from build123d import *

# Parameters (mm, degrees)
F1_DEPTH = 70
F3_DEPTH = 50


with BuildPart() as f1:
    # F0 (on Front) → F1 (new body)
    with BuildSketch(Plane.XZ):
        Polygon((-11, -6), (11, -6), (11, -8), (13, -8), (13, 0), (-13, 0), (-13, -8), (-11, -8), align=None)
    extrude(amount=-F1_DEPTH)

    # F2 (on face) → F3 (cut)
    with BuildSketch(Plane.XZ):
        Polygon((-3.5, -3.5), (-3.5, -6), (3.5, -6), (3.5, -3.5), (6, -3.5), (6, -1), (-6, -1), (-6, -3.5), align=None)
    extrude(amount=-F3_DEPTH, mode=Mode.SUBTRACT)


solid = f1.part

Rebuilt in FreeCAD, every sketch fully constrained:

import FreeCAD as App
import Part
import Sketcher


def add_polygon(sketch, points):
    """Adds a closed chain of lines whose ends are joined by coincident constraints."""
    first, n = sketch.GeometryCount, len(points)
    for a, b in zip(points, points[1:] + points[:1]):
        sketch.addGeometry(Part.LineSegment(App.Vector(*a, 0), App.Vector(*b, 0)), False)
    for i in range(n):
        sketch.addConstraint(Sketcher.Constraint("Coincident", first + i, 2, first + (i + 1) % n, 1))

doc = App.newDocument("Part")
body = doc.addObject("PartDesign::Body", "Body")

sketch1 = body.newObject("Sketcher::SketchObject", "Sketch")
sketch1.AttachmentSupport = (doc.getObject("XZ_Plane"), [""])
sketch1.MapMode = "FlatFace"
add_polygon(sketch1, [(-11, -6), (11, -6), (11, -8), (13, -8), (13, 0), (-13, 0), (-13, -8), (-11, -8)])
sketch1.addConstraint([
    Sketcher.Constraint("Horizontal", 0),
    Sketcher.Constraint("Vertical", 1),
    Sketcher.Constraint("Horizontal", 2),
    Sketcher.Constraint("Vertical", 3),
    Sketcher.Constraint("Horizontal", 4),
    Sketcher.Constraint("Vertical", 5),
    Sketcher.Constraint("Horizontal", 6),
    Sketcher.Constraint("Vertical", 7),
    Sketcher.Constraint("Symmetric", 3, 2, 4, 2, -1, 1),
    Sketcher.Constraint("Symmetric", 1, 2, 6, 2, -2),
    Sketcher.Constraint("Equal", 6, 1),
    Sketcher.Constraint("DistanceX", 0, 1, 0, 2, 22.0),
    Sketcher.Constraint("DistanceX", 2, 1, 2, 2, 2.0),
    Sketcher.Constraint("DistanceY", 3, 1, 3, 2, 8.0),
])
pad1 = body.newObject("PartDesign::Pad", "Pad")
pad1.Profile = sketch1
pad1.Length = 70
pad1.Reversed = True

sketch2 = body.newObject("Sketcher::SketchObject", "Sketch001")
sketch2.AttachmentSupport = (doc.getObject("XZ_Plane"), [""])
sketch2.MapMode = "FlatFace"
add_polygon(sketch2, [(-3.5, -3.5), (-3.5, -6), (3.5, -6), (3.5, -3.5), (6, -3.5), (6, -1), (-6, -1), (-6, -3.5)])
sketch2.addConstraint([
    Sketcher.Constraint("Vertical", 0),
    Sketcher.Constraint("Horizontal", 1),
    Sketcher.Constraint("Vertical", 2),
    Sketcher.Constraint("Horizontal", 3),
    Sketcher.Constraint("Vertical", 4),
    Sketcher.Constraint("Horizontal", 5),
    Sketcher.Constraint("Vertical", 6),
    Sketcher.Constraint("Horizontal", 7),
    Sketcher.Constraint("Symmetric", 3, 2, 6, 2, -2),
    Sketcher.Constraint("Equal", 3, 7),
    Sketcher.Constraint("Equal", 7, 0),
    Sketcher.Constraint("Equal", 2, 4),
    Sketcher.Constraint("DistanceX", 1, 1, 1, 2, 7.0),
    Sketcher.Constraint("DistanceX", 5, 2, 5, 1, 12.0),
    Sketcher.Constraint("DistanceY", 0, 2, -1, 1, 6.0),
])
pocket1 = body.newObject("PartDesign::Pocket", "Pocket")
pocket1.Profile = sketch2
pocket1.Length = 50

doc.recompute()
